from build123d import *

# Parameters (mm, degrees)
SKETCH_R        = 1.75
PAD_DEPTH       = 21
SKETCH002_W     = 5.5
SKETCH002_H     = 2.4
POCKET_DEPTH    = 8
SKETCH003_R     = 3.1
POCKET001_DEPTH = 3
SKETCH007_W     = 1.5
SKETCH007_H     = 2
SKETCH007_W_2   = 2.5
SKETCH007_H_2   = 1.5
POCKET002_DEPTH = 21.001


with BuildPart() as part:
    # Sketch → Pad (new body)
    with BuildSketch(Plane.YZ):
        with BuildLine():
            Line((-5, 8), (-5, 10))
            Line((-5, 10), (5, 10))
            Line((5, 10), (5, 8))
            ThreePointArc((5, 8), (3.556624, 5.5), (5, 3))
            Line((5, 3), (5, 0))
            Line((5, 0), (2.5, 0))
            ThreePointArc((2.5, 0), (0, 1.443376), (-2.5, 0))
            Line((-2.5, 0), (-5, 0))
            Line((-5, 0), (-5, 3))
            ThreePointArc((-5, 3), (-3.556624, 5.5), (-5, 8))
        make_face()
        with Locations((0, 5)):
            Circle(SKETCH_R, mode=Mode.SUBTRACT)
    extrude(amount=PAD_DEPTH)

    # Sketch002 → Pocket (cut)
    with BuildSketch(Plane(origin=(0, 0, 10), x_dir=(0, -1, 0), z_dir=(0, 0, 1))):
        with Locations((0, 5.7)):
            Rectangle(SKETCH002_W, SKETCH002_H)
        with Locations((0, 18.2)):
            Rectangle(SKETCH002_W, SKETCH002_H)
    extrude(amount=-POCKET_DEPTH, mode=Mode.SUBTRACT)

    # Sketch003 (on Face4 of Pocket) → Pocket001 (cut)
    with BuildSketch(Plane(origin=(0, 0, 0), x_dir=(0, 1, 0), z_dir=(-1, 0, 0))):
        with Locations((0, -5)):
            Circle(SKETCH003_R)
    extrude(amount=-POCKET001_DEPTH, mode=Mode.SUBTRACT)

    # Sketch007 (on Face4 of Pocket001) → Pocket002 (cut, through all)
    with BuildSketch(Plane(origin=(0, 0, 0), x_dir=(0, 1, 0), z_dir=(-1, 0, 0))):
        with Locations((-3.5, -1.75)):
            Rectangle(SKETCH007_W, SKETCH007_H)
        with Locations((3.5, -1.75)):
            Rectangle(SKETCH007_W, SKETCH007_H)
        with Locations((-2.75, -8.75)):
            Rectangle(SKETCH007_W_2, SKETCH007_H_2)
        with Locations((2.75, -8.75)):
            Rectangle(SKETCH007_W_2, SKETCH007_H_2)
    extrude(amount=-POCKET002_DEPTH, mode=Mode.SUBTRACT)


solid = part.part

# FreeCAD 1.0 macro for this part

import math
import FreeCAD as App
import Part
import Sketcher

V = App.Vector

doc = App.newDocument("Part")
body = doc.addObject("PartDesign::Body", "Body")

sketch1 = body.newObject("Sketcher::SketchObject", "Sketch")
sketch1.AttachmentSupport = (doc.getObject("YZ_Plane"), [""])
sketch1.MapMode = "FlatFace"
sketch1.addGeometry(Part.LineSegment(V(-5, 10, 0), V(-5, 8, 0)), False)
sketch1.addGeometry(Part.ArcOfCircle(Part.Circle(V(-6.443375, 5.5, 0), V(0, 0, 1), 2.886751), math.radians(-60.000011), math.radians(60.000011)), False)
sketch1.addGeometry(Part.LineSegment(V(-5, 3, 0), V(-5, 0, 0)), False)
sketch1.addGeometry(Part.LineSegment(V(-5, 0, 0), V(-2.5, 0, 0)), False)
sketch1.addGeometry(Part.ArcOfCircle(Part.Circle(V(0, -1.443375, 0), V(0, 0, 1), 2.886751), math.radians(29.999989), math.radians(150.000011)), False)
sketch1.addGeometry(Part.LineSegment(V(2.5, 0, 0), V(5, 0, 0)), False)
sketch1.addGeometry(Part.LineSegment(V(5, 0, 0), V(5, 3, 0)), False)
sketch1.addGeometry(Part.ArcOfCircle(Part.Circle(V(6.443375, 5.5, 0), V(0, 0, 1), 2.886751), math.radians(119.999989), math.radians(240.000011)), False)
sketch1.addGeometry(Part.LineSegment(V(5, 8, 0), V(5, 10, 0)), False)
sketch1.addGeometry(Part.LineSegment(V(5, 10, 0), V(-5, 10, 0)), False)
sketch1.addGeometry(Part.Circle(V(0, 5, 0), V(0, 0, 1), 1.75), False)
sketch1.addConstraint(Sketcher.Constraint("Coincident", 0, 2, 1, 2))
sketch1.addConstraint(Sketcher.Constraint("Coincident", 1, 1, 2, 1))
sketch1.addConstraint(Sketcher.Constraint("Coincident", 2, 2, 3, 1))
sketch1.addConstraint(Sketcher.Constraint("Coincident", 3, 2, 4, 2))
sketch1.addConstraint(Sketcher.Constraint("Coincident", 4, 1, 5, 1))
sketch1.addConstraint(Sketcher.Constraint("Coincident", 5, 2, 6, 1))
sketch1.addConstraint(Sketcher.Constraint("Coincident", 6, 2, 7, 2))
sketch1.addConstraint(Sketcher.Constraint("Coincident", 7, 1, 8, 1))
sketch1.addConstraint(Sketcher.Constraint("Coincident", 8, 2, 9, 1))
sketch1.addConstraint(Sketcher.Constraint("Coincident", 9, 2, 0, 1))
sketch1.addConstraint(Sketcher.Constraint("Vertical", 0))
sketch1.addConstraint(Sketcher.Constraint("Vertical", 2))
sketch1.addConstraint(Sketcher.Constraint("Horizontal", 3))
sketch1.addConstraint(Sketcher.Constraint("Horizontal", 5))
sketch1.addConstraint(Sketcher.Constraint("Vertical", 6))
sketch1.addConstraint(Sketcher.Constraint("Vertical", 8))
sketch1.addConstraint(Sketcher.Constraint("Horizontal", 9))
sketch1.addConstraint(Sketcher.Constraint("Equal", 1, 4))
sketch1.addConstraint(Sketcher.Constraint("Equal", 4, 7))
sketch1.addConstraint(Sketcher.Constraint("Symmetric", 3, 2, 4, 1, -1, 1))
sketch1.addConstraint(Sketcher.Constraint("Symmetric", 1, 3, 7, 3, -2))
sketch1.addConstraint(Sketcher.Constraint("Symmetric", 2, 2, 5, 2, -2))
sketch1.addConstraint(Sketcher.Constraint("PointOnObject", 10, 3, -2))
sketch1.addConstraint(Sketcher.Constraint("Horizontal", 0, 2, 7, 1))
sketch1.addConstraint(Sketcher.Constraint("Vertical", 0, 2, 1, 1))
sketch1.addConstraint(Sketcher.Constraint("Diameter", 10, 3.5))
sketch1.addConstraint(Sketcher.Constraint("DistanceX", 9, 2, 9, 1, 10.0))
sketch1.addConstraint(Sketcher.Constraint("DistanceY", 0, 2, 0, 1, 2.0))
sketch1.addConstraint(Sketcher.Constraint("DistanceY", 2, 2, 2, 1, 3.0))
sketch1.addConstraint(Sketcher.Constraint("DistanceX", 3, 1, 3, 2, 2.5))
sketch1.addConstraint(Sketcher.Constraint("DistanceY", -1, 1, 10, 3, 5.0))
sketch1.addConstraint(Sketcher.Constraint("DistanceY", -1, 1, 0, 2, 8.0))
sketch1.addConstraint(Sketcher.Constraint("Radius", 1, 2.886751))
pad1 = body.newObject("PartDesign::Pad", "Pad")
pad1.Profile = sketch1
pad1.Length = 21

sketch2 = body.newObject("Sketcher::SketchObject", "Sketch001")
sketch2.AttachmentSupport = (doc.getObject("XY_Plane"), [""])
sketch2.MapMode = "FlatFace"
sketch2.AttachmentOffset = App.Placement(V(0, 0, 10), App.Rotation())
sketch2.addGeometry(Part.LineSegment(V(6.9, 2.75, 0), V(4.5, 2.75, 0)), False)
sketch2.addGeometry(Part.LineSegment(V(4.5, 2.75, 0), V(4.5, -2.75, 0)), False)
sketch2.addGeometry(Part.LineSegment(V(4.5, -2.75, 0), V(6.9, -2.75, 0)), False)
sketch2.addGeometry(Part.LineSegment(V(6.9, -2.75, 0), V(6.9, 2.75, 0)), False)
sketch2.addGeometry(Part.LineSegment(V(19.4, 2.75, 0), V(17, 2.75, 0)), False)
sketch2.addGeometry(Part.LineSegment(V(17, 2.75, 0), V(17, -2.75, 0)), False)
sketch2.addGeometry(Part.LineSegment(V(17, -2.75, 0), V(19.4, -2.75, 0)), False)
sketch2.addGeometry(Part.LineSegment(V(19.4, -2.75, 0), V(19.4, 2.75, 0)), False)
sketch2.addConstraint(Sketcher.Constraint("Coincident", 0, 2, 1, 1))
sketch2.addConstraint(Sketcher.Constraint("Coincident", 1, 2, 2, 1))
sketch2.addConstraint(Sketcher.Constraint("Coincident", 2, 2, 3, 1))
sketch2.addConstraint(Sketcher.Constraint("Coincident", 3, 2, 0, 1))
sketch2.addConstraint(Sketcher.Constraint("Coincident", 4, 2, 5, 1))
sketch2.addConstraint(Sketcher.Constraint("Coincident", 5, 2, 6, 1))
sketch2.addConstraint(Sketcher.Constraint("Coincident", 6, 2, 7, 1))
sketch2.addConstraint(Sketcher.Constraint("Coincident", 7, 2, 4, 1))
sketch2.addConstraint(Sketcher.Constraint("Horizontal", 0))
sketch2.addConstraint(Sketcher.Constraint("Vertical", 1))
sketch2.addConstraint(Sketcher.Constraint("Horizontal", 2))
sketch2.addConstraint(Sketcher.Constraint("Vertical", 3))
sketch2.addConstraint(Sketcher.Constraint("Horizontal", 4))
sketch2.addConstraint(Sketcher.Constraint("Vertical", 5))
sketch2.addConstraint(Sketcher.Constraint("Horizontal", 6))
sketch2.addConstraint(Sketcher.Constraint("Vertical", 7))
sketch2.addConstraint(Sketcher.Constraint("Horizontal", 3, 2, 4, 2))
sketch2.addConstraint(Sketcher.Constraint("Horizontal", 2, 2, 5, 2))
sketch2.addConstraint(Sketcher.Constraint("Equal", 2, 4))
sketch2.addConstraint(Sketcher.Constraint("DistanceX", 0, 2, 0, 1, 2.4))
sketch2.addConstraint(Sketcher.Constraint("DistanceY", 1, 2, 1, 1, 5.5))
sketch2.addConstraint(Sketcher.Constraint("DistanceX", -1, 1, 4, 2, 17.0))
sketch2.addConstraint(Sketcher.Constraint("DistanceX", -1, 1, 0, 2, 4.5))
sketch2.addConstraint(Sketcher.Constraint("DistanceY", -1, 1, 0, 2, 2.75))
pocket1 = body.newObject("PartDesign::Pocket", "Pocket")
pocket1.Profile = sketch2
pocket1.Length = 8

sketch3 = body.newObject("Sketcher::SketchObject", "Sketch002")
sketch3.AttachmentSupport = (doc.getObject("YZ_Plane"), [""])
sketch3.MapMode = "FlatFace"
sketch3.addGeometry(Part.Circle(V(0, 5, 0), V(0, 0, 1), 3.1), False)
sketch3.addConstraint(Sketcher.Constraint("PointOnObject", 0, 3, -2))
sketch3.addConstraint(Sketcher.Constraint("Diameter", 0, 6.2))
sketch3.addConstraint(Sketcher.Constraint("DistanceY", -1, 1, 0, 3, 5.0))
pocket2 = body.newObject("PartDesign::Pocket", "Pocket001")
pocket2.Profile = sketch3
pocket2.Length = 3
pocket2.Reversed = True

sketch4 = body.newObject("Sketcher::SketchObject", "Sketch003")
sketch4.AttachmentSupport = (doc.getObject("YZ_Plane"), [""])
sketch4.MapMode = "FlatFace"
sketch4.addGeometry(Part.LineSegment(V(-4.25, 0.75, 0), V(-4.25, 2.75, 0)), False)
sketch4.addGeometry(Part.LineSegment(V(-4.25, 2.75, 0), V(-2.75, 2.75, 0)), False)
sketch4.addGeometry(Part.LineSegment(V(-2.75, 2.75, 0), V(-2.75, 0.75, 0)), False)
sketch4.addGeometry(Part.LineSegment(V(-2.75, 0.75, 0), V(-4.25, 0.75, 0)), False)
sketch4.addGeometry(Part.LineSegment(V(2.75, 0.75, 0), V(2.75, 2.75, 0)), False)
sketch4.addGeometry(Part.LineSegment(V(2.75, 2.75, 0), V(4.25, 2.75, 0)), False)
sketch4.addGeometry(Part.LineSegment(V(4.25, 2.75, 0), V(4.25, 0.75, 0)), False)
sketch4.addGeometry(Part.LineSegment(V(4.25, 0.75, 0), V(2.75, 0.75, 0)), False)
sketch4.addGeometry(Part.LineSegment(V(-4, 8, 0), V(-4, 9.5, 0)), False)
sketch4.addGeometry(Part.LineSegment(V(-4, 9.5, 0), V(-1.5, 9.5, 0)), False)
sketch4.addGeometry(Part.LineSegment(V(-1.5, 9.5, 0), V(-1.5, 8, 0)), False)
sketch4.addGeometry(Part.LineSegment(V(-1.5, 8, 0), V(-4, 8, 0)), False)
sketch4.addGeometry(Part.LineSegment(V(1.5, 8, 0), V(1.5, 9.5, 0)), False)
sketch4.addGeometry(Part.LineSegment(V(1.5, 9.5, 0), V(4, 9.5, 0)), False)
sketch4.addGeometry(Part.LineSegment(V(4, 9.5, 0), V(4, 8, 0)), False)
sketch4.addGeometry(Part.LineSegment(V(4, 8, 0), V(1.5, 8, 0)), False)
sketch4.addConstraint(Sketcher.Constraint("Coincident", 0, 2, 1, 1))
sketch4.addConstraint(Sketcher.Constraint("Coincident", 1, 2, 2, 1))
sketch4.addConstraint(Sketcher.Constraint("Coincident", 2, 2, 3, 1))
sketch4.addConstraint(Sketcher.Constraint("Coincident", 3, 2, 0, 1))
sketch4.addConstraint(Sketcher.Constraint("Coincident", 4, 2, 5, 1))
sketch4.addConstraint(Sketcher.Constraint("Coincident", 5, 2, 6, 1))
sketch4.addConstraint(Sketcher.Constraint("Coincident", 6, 2, 7, 1))
sketch4.addConstraint(Sketcher.Constraint("Coincident", 7, 2, 4, 1))
sketch4.addConstraint(Sketcher.Constraint("Coincident", 8, 2, 9, 1))
sketch4.addConstraint(Sketcher.Constraint("Coincident", 9, 2, 10, 1))
sketch4.addConstraint(Sketcher.Constraint("Coincident", 10, 2, 11, 1))
sketch4.addConstraint(Sketcher.Constraint("Coincident", 11, 2, 8, 1))
sketch4.addConstraint(Sketcher.Constraint("Coincident", 12, 2, 13, 1))
sketch4.addConstraint(Sketcher.Constraint("Coincident", 13, 2, 14, 1))
sketch4.addConstraint(Sketcher.Constraint("Coincident", 14, 2, 15, 1))
sketch4.addConstraint(Sketcher.Constraint("Coincident", 15, 2, 12, 1))
sketch4.addConstraint(Sketcher.Constraint("Vertical", 0))
sketch4.addConstraint(Sketcher.Constraint("Horizontal", 1))
sketch4.addConstraint(Sketcher.Constraint("Vertical", 2))
sketch4.addConstraint(Sketcher.Constraint("Horizontal", 3))
sketch4.addConstraint(Sketcher.Constraint("Vertical", 4))
sketch4.addConstraint(Sketcher.Constraint("Horizontal", 5))
sketch4.addConstraint(Sketcher.Constraint("Vertical", 6))
sketch4.addConstraint(Sketcher.Constraint("Horizontal", 7))
sketch4.addConstraint(Sketcher.Constraint("Vertical", 8))
sketch4.addConstraint(Sketcher.Constraint("Horizontal", 9))
sketch4.addConstraint(Sketcher.Constraint("Vertical", 10))
sketch4.addConstraint(Sketcher.Constraint("Horizontal", 11))
sketch4.addConstraint(Sketcher.Constraint("Vertical", 12))
sketch4.addConstraint(Sketcher.Constraint("Horizontal", 13))
sketch4.addConstraint(Sketcher.Constraint("Vertical", 14))
sketch4.addConstraint(Sketcher.Constraint("Horizontal", 15))
sketch4.addConstraint(Sketcher.Constraint("Symmetric", 1, 2, 4, 2, -2))
sketch4.addConstraint(Sketcher.Constraint("Symmetric", 3, 2, 6, 2, -2))
sketch4.addConstraint(Sketcher.Constraint("Symmetric", 9, 2, 12, 2, -2))
sketch4.addConstraint(Sketcher.Constraint("Symmetric", 11, 2, 14, 2, -2))
sketch4.addConstraint(Sketcher.Constraint("Equal", 7, 8))
sketch4.addConstraint(Sketcher.Constraint("DistanceY", 0, 1, 0, 2, 2.0))
sketch4.addConstraint(Sketcher.Constraint("DistanceX", 1, 1, 1, 2, 1.5))
sketch4.addConstraint(Sketcher.Constraint("DistanceX", 9, 1, 9, 2, 2.5))
sketch4.addConstraint(Sketcher.Constraint("DistanceX", 8, 2, -1, 1, 4.0))
sketch4.addConstraint(Sketcher.Constraint("DistanceY", -1, 1, 10, 2, 8.0))
sketch4.addConstraint(Sketcher.Constraint("DistanceX", 0, 2, 4, 2, 7.0))
sketch4.addConstraint(Sketcher.Constraint("DistanceY", -1, 1, 0, 2, 2.75))
pocket3 = body.newObject("PartDesign::Pocket", "Pocket002")
pocket3.Profile = sketch4
pocket3.Type = "ThroughAll"
pocket3.Reversed = True

doc.recompute()
